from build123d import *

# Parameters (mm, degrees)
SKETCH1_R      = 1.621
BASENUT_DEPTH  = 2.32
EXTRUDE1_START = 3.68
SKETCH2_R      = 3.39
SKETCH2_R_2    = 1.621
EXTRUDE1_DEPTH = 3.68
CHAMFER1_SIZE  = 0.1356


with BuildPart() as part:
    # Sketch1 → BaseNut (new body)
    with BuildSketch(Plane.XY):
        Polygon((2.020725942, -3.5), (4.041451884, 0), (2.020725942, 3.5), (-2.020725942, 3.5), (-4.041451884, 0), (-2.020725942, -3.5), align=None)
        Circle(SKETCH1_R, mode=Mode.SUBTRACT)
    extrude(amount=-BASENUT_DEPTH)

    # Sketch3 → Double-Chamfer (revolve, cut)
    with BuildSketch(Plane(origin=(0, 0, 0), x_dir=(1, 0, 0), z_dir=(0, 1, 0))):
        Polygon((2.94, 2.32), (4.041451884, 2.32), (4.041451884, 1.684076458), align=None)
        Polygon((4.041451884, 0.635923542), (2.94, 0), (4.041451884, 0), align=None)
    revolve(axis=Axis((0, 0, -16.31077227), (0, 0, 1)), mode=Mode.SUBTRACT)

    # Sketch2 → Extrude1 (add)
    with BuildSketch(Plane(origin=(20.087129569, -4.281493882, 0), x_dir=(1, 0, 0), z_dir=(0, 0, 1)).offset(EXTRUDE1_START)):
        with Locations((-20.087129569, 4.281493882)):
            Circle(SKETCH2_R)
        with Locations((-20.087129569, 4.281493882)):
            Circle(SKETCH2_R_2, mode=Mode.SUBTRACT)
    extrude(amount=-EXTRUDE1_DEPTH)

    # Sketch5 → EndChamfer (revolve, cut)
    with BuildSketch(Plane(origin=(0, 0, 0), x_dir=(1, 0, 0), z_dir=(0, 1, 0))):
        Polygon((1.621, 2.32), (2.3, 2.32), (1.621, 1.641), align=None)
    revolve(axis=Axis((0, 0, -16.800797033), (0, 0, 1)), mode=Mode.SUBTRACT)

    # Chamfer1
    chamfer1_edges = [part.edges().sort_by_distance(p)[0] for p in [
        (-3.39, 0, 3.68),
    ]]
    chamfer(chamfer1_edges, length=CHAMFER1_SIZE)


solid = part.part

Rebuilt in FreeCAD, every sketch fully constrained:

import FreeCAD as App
import Part
import Sketcher
Q = App.Units.Quantity


def edges_at(feature, points):
    """Names of the edges that pass closest to the given points."""
    edges = feature.Shape.Edges
    near = lambda p: min(range(len(edges)), key=lambda i: edges[i].distToShape(Part.Vertex(*p))[0])
    return sorted({f"Edge{near(p) + 1}" for p in points})


def add_polygon(sketch, points):
    """Adds a closed chain of lines whose ends are joined by coincident constraints."""
    first, n = sketch.GeometryCount, len(points)
    for a, b in zip(points, points[1:] + points[:1]):
        sketch.addGeometry(Part.LineSegment(App.Vector(*a, 0), App.Vector(*b, 0)), False)
    for i in range(n):
        sketch.addConstraint(Sketcher.Constraint("Coincident", first + i, 2, first + (i + 1) % n, 1))

doc = App.newDocument("Part")
body = doc.addObject("PartDesign::Body", "Body")

sketch1 = doc.addObject("Sketcher::SketchObject", "Sketch")
body.addObject(sketch1)
sketch1.AttachmentSupport = (doc.XY_Plane, [""])
sketch1.MapMode = "FlatFace"
add_polygon(sketch1, [(2.020726, -3.5), (4.041452, 0), (2.020726, 3.5), (-2.020726, 3.5), (-4.041452, 0), (-2.020726, -3.5)])
sketch1.addGeometry(Part.Circle(App.Vector(0, 0, 0), App.Vector(0, 0, 1), 1.621), False)
sketch1.addConstraint(Sketcher.Constraint("Horizontal", 2))
sketch1.addConstraint(Sketcher.Constraint("Horizontal", 5))
sketch1.addConstraint(Sketcher.Constraint("Coincident", 6, 3, -1, 1))
sketch1.addConstraint(Sketcher.Constraint("Symmetric", 0, 2, 3, 2, -1, 1))
sketch1.addConstraint(Sketcher.Constraint("Symmetric", 1, 2, 4, 2, -1, 1))
sketch1.addConstraint(Sketcher.Constraint("PointOnObject", 0, 2, -1))
sketch1.addConstraint(Sketcher.Constraint("Parallel", 0, 3))
sketch1.addConstraint(Sketcher.Constraint("Vertical", 2, 2, 4, 2))
sketch1.addConstraint(Sketcher.Constraint("Angle", 0, Q("60 deg")))
sketch1.addConstraint(Sketcher.Constraint("Diameter", 6, 3.242))
sketch1.addConstraint(Sketcher.Constraint("DistanceY", 4, 2, 2, 2, 7.0))
sketch1.addConstraint(Sketcher.Constraint("DistanceX", 2, 2, 2, 1, 4.041452))
pad1 = doc.addObject("PartDesign::Pad", "Pad")
body.addObject(pad1)
pad1.Profile = sketch1
pad1.Length = 2.32
pad1.Reversed = True

sketch2 = doc.addObject("Sketcher::SketchObject", "Sketch001")
body.addObject(sketch2)
sketch2.AttachmentSupport = (doc.XZ_Plane, [""])
sketch2.MapMode = "FlatFace"
add_polygon(sketch2, [(4.041452, -2.32), (2.94, -2.32), (4.041452, -1.684076)])
add_polygon(sketch2, [(4.041452, -0.635924), (2.94, 0), (4.041452, 0)])
sketch2.addConstraint(Sketcher.Constraint("Horizontal", 0))
sketch2.addConstraint(Sketcher.Constraint("Vertical", 2))
sketch2.addConstraint(Sketcher.Constraint("Horizontal", 4))
sketch2.addConstraint(Sketcher.Constraint("Vertical", 5))
sketch2.addConstraint(Sketcher.Constraint("PointOnObject", 3, 2, -1))
sketch2.addConstraint(Sketcher.Constraint("Vertical", 0, 2, 3, 2))
sketch2.addConstraint(Sketcher.Constraint("Vertical", 2, 2, 4, 2))
sketch2.addConstraint(Sketcher.Constraint("Equal", 2, 5))
sketch2.addConstraint(Sketcher.Constraint("Angle", 1, Q("30 deg")))
sketch2.addConstraint(Sketcher.Constraint("DistanceX", -1, 1, 0, 2, 2.94))
sketch2.addConstraint(Sketcher.Constraint("DistanceY", 0, 2, -1, 1, 2.32))
sketch2.addConstraint(Sketcher.Constraint("DistanceX", 0, 2, 0, 1, 1.101452))
groove = doc.addObject("PartDesign::Groove", "Groove")
body.addObject(groove)
groove.Profile = sketch2
groove.ReferenceAxis = (sketch2, ["V_Axis"])
groove.Angle = 360

sketch3 = doc.addObject("Sketcher::SketchObject", "Sketch002")
body.addObject(sketch3)
sketch3.AttachmentSupport = (doc.XY_Plane, [""])
sketch3.MapMode = "FlatFace"
sketch3.AttachmentOffset = App.Placement(App.Vector(0, 0, 3.68), App.Rotation())
sketch3.addGeometry(Part.Circle(App.Vector(0, 0, 0), App.Vector(0, 0, 1), 3.39), False)
sketch3.addGeometry(Part.Circle(App.Vector(0, 0, 0), App.Vector(0, 0, 1), 1.621), False)
sketch3.addConstraint(Sketcher.Constraint("Coincident", 0, 3, -1, 1))
sketch3.addConstraint(Sketcher.Constraint("Coincident", 1, 3, -1, 1))
sketch3.addConstraint(Sketcher.Constraint("Diameter", 0, 6.78))
sketch3.addConstraint(Sketcher.Constraint("Diameter", 1, 3.242))
pad2 = doc.addObject("PartDesign::Pad", "Pad001")
body.addObject(pad2)
pad2.Profile = sketch3
pad2.Length = 3.68
pad2.Reversed = True

sketch4 = doc.addObject("Sketcher::SketchObject", "Sketch003")
body.addObject(sketch4)
sketch4.AttachmentSupport = (doc.XZ_Plane, [""])
sketch4.MapMode = "FlatFace"
add_polygon(sketch4, [(2.3, -2.32), (1.621, -2.32), (1.621, -1.641)])
sketch4.addConstraint(Sketcher.Constraint("Horizontal", 0))
sketch4.addConstraint(Sketcher.Constraint("Vertical", 1))
sketch4.addConstraint(Sketcher.Constraint("Equal", 0, 1))
sketch4.addConstraint(Sketcher.Constraint("DistanceX", -1, 1, 2, 2, 2.3))
sketch4.addConstraint(Sketcher.Constraint("DistanceX", 0, 2, 0, 1, 0.679))
sketch4.addConstraint(Sketcher.Constraint("DistanceY", 0, 2, -1, 1, 2.32))
groove2 = doc.addObject("PartDesign::Groove", "Groove001")
body.addObject(groove2)
groove2.Profile = sketch4
groove2.ReferenceAxis = (sketch4, ["V_Axis"])
groove2.Angle = 360
doc.recompute()

chamfer = doc.addObject("PartDesign::Chamfer", "Chamfer")
body.addObject(chamfer)
chamfer.Base = (groove2, edges_at(groove2, [(-3.39, 0, 3.68)]))
chamfer.Size = 0.1356

doc.recompute()
